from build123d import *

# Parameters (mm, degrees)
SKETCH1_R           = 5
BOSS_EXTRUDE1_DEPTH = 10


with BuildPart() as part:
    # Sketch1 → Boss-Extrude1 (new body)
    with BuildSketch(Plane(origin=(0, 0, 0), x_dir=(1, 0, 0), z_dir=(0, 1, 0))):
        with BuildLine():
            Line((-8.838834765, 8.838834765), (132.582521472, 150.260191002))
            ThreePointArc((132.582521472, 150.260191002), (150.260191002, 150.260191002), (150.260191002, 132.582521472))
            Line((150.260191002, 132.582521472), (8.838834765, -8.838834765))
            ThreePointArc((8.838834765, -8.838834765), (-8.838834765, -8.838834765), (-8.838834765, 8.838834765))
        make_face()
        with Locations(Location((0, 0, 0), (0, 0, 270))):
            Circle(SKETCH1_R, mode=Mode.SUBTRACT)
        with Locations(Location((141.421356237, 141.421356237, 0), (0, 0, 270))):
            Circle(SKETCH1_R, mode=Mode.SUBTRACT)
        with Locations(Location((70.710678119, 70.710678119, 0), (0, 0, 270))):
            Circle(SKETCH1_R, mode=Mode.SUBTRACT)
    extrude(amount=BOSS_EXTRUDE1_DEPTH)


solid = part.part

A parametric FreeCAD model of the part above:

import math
import FreeCAD as App
import Part
import Sketcher
Q = App.Units.Quantity

doc = App.newDocument("Part")
body = doc.addObject("PartDesign::Body", "Body")

# Sketch on XZ plane
sketch1 = body.newObject("Sketcher::SketchObject", "Sketch")
sketch1.AttachmentSupport = (doc.getObject("XZ_Plane"), [""])
sketch1.MapMode = "FlatFace"
sketch1.addGeometry([
    Part.LineSegment(App.Vector(132.582521, -150.260191, 0), App.Vector(-8.838835, -8.838835, 0)),  # 0
    Part.ArcOfCircle(Part.Circle(App.Vector(0, 0, 0), App.Vector(0, 0, 1), 12.5), math.radians(45), math.radians(225)),  # 1
    Part.LineSegment(App.Vector(8.838835, 8.838835, 0), App.Vector(150.260191, -132.582521, 0)),  # 2
    Part.ArcOfCircle(Part.Circle(App.Vector(141.421356, -141.421356, 0), App.Vector(0, 0, 1), 12.5), math.radians(-135), math.radians(45)),  # 3
    Part.Circle(App.Vector(0, 0, 0), App.Vector(0, 0, 1), 5),  # 4
    Part.Circle(App.Vector(70.710678, -70.710678, 0), App.Vector(0, 0, 1), 5),  # 5
    Part.Circle(App.Vector(141.421356, -141.421356, 0), App.Vector(0, 0, 1), 5),  # 6
], False)
sketch1.addConstraint([
    Sketcher.Constraint("Tangent", 0, 2, 1, 2),
    Sketcher.Constraint("Tangent", 1, 1, 2, 1),
    Sketcher.Constraint("Tangent", 2, 2, 3, 2),
    Sketcher.Constraint("Tangent", 3, 1, 0, 1),
    Sketcher.Constraint("Coincident", 1, 3, -1, 1),
    Sketcher.Constraint("Coincident", 4, 3, -1, 1),
    Sketcher.Constraint("Coincident", 6, 3, 3, 3),
    Sketcher.Constraint("Equal", 1, 3),
    Sketcher.Constraint("Equal", 4, 5),
    Sketcher.Constraint("Equal", 5, 6),
    Sketcher.Constraint("Diameter", 4, 10.0),
    Sketcher.Constraint("Radius", 1, 12.5),
    Sketcher.Constraint("Angle", 0, Q("135 deg")),
    Sketcher.Constraint("Distance", 0, 200.0),
    Sketcher.Constraint("DistanceX", -1, 1, 5, 3, 70.710678),
    Sketcher.Constraint("DistanceY", 5, 3, -1, 1, 70.710678),
])
pad1 = body.newObject("PartDesign::Pad", "Pad")
pad1.Profile = sketch1
pad1.Length = 10
pad1.Reversed = True

doc.recompute()
